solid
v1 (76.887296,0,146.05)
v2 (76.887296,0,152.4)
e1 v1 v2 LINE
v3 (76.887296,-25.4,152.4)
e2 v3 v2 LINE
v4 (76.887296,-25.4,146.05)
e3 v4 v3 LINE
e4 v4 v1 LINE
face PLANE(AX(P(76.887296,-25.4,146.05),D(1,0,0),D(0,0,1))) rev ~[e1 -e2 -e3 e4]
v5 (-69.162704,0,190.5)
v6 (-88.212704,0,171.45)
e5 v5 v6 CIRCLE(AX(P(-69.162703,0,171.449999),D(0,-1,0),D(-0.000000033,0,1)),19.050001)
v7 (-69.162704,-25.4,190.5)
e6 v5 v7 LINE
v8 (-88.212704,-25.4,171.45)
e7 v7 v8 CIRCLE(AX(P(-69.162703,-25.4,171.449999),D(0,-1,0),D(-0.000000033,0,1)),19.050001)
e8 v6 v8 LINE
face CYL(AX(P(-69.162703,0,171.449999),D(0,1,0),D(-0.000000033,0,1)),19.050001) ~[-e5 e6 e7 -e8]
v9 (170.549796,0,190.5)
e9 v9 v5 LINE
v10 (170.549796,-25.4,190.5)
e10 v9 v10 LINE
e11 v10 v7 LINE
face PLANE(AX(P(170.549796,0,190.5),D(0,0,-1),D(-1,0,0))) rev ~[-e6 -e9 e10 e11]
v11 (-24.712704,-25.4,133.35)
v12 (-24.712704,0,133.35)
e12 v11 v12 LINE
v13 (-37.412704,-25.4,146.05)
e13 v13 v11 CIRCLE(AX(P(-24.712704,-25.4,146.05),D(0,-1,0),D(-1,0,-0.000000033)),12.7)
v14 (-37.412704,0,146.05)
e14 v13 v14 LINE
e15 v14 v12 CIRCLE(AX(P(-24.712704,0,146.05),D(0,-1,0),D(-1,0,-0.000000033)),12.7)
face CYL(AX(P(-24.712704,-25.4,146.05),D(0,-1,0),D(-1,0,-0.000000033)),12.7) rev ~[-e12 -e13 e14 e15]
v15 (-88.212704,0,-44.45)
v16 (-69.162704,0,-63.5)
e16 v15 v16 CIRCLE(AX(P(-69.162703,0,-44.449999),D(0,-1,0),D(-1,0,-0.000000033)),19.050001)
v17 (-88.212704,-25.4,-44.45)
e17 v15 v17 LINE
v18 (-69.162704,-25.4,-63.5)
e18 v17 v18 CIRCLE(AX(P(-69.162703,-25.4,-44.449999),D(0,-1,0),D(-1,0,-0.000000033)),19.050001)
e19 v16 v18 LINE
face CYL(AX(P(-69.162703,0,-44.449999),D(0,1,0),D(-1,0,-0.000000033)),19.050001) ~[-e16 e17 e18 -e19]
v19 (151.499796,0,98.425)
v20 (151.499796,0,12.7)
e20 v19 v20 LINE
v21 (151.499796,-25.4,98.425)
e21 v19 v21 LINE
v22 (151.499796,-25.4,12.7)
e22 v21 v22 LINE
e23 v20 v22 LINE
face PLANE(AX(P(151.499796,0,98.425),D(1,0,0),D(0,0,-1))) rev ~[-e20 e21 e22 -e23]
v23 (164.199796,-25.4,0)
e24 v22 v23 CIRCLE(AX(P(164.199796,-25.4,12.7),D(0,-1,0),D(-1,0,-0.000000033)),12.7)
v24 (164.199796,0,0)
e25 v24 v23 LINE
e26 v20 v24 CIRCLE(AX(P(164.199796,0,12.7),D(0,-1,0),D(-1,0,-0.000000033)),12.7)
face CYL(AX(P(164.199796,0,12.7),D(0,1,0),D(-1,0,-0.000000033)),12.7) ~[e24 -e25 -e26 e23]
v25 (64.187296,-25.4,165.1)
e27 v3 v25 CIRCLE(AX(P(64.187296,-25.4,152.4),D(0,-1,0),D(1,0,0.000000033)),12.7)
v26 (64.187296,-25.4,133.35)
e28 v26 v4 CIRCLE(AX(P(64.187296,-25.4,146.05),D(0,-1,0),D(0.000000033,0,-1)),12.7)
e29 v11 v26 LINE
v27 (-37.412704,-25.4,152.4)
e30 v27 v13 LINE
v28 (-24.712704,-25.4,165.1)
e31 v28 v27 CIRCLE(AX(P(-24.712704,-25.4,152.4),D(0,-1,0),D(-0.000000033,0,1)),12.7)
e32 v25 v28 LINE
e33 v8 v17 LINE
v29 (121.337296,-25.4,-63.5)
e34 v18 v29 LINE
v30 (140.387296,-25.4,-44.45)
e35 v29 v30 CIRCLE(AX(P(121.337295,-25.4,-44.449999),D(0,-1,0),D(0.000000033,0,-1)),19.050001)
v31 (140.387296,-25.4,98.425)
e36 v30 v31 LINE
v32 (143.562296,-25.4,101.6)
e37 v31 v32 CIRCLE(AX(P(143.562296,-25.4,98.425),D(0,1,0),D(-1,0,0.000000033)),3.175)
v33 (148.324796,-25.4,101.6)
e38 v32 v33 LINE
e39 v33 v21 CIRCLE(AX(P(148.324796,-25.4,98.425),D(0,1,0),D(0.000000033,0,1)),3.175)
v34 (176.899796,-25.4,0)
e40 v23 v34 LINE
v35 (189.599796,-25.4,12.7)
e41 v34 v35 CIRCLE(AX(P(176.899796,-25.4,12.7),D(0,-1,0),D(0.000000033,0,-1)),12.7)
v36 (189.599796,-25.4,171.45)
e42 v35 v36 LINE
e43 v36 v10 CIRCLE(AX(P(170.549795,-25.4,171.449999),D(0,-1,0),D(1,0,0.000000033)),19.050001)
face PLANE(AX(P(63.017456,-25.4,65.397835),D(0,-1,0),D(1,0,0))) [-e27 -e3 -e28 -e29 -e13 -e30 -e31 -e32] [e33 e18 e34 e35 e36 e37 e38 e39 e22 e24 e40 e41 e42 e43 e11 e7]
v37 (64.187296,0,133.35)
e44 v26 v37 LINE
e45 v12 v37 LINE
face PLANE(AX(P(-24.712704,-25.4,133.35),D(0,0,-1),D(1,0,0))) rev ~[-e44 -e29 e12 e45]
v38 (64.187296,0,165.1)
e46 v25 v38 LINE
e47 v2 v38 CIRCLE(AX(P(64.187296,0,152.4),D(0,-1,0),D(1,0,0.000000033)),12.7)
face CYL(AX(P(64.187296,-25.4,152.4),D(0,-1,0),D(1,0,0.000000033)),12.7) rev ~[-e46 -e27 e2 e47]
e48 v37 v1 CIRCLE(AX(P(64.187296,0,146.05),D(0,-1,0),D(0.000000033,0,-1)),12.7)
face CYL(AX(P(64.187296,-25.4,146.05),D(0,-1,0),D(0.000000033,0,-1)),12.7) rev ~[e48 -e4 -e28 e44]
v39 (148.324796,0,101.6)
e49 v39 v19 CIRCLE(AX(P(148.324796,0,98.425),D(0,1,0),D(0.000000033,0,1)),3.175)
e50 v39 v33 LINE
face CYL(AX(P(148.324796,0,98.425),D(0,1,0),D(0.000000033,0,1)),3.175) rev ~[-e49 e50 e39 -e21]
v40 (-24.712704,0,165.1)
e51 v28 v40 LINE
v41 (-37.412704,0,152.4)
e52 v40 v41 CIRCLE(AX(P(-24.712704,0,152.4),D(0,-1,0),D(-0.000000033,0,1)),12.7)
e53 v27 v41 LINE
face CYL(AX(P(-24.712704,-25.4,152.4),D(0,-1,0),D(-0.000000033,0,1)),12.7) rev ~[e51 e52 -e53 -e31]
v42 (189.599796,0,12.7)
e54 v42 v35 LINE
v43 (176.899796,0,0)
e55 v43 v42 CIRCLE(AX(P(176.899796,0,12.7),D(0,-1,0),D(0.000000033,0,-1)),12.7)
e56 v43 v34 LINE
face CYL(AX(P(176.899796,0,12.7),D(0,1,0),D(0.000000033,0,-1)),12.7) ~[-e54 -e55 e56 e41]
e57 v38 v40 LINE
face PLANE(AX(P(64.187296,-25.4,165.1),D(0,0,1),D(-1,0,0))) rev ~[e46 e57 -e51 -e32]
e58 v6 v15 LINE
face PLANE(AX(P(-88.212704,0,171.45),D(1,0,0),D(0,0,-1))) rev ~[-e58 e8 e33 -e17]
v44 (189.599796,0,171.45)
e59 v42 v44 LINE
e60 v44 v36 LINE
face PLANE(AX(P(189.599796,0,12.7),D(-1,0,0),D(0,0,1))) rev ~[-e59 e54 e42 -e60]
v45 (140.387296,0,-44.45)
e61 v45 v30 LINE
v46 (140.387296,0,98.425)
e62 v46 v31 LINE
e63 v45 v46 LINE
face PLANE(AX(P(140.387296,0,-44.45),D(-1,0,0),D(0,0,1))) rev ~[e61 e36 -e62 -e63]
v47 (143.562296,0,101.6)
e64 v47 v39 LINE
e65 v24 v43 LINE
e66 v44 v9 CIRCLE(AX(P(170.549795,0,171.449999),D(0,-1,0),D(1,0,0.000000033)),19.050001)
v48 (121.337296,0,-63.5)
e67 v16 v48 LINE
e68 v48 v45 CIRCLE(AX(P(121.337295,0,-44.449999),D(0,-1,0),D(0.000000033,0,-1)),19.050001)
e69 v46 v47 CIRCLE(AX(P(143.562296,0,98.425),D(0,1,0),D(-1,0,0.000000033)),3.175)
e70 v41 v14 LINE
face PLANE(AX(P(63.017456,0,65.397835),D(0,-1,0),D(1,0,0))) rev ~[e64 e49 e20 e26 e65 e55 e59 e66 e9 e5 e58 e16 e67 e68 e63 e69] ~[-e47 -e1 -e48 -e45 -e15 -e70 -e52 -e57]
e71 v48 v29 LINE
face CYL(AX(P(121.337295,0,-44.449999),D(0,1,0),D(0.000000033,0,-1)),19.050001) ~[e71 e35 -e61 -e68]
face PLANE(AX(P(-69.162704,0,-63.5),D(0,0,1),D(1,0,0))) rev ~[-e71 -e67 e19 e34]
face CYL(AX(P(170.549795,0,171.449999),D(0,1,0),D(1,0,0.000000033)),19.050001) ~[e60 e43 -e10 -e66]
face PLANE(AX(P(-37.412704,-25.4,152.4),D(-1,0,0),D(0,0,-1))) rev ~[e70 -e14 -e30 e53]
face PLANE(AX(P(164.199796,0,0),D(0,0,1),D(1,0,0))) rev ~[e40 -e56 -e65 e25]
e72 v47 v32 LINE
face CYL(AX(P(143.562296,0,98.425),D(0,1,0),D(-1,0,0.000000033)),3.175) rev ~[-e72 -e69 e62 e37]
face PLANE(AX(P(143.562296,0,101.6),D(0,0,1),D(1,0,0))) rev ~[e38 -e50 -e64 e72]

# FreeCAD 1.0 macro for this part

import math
import FreeCAD as App
import Part
import Sketcher
Q = App.Units.Quantity

doc = App.newDocument("Part")
body = doc.addObject("PartDesign::Body", "Body")

# Sketch on XZ plane
sketch1 = body.newObject("Sketcher::SketchObject", "Sketch")
sketch1.AttachmentSupport = (doc.getObject("XZ_Plane"), [""])
sketch1.MapMode = "FlatFace"
sketch1.addGeometry([
    Part.LineSegment(App.Vector(170.5, 190.5, 0), App.Vector(-69.2, 190.5, 0)),  # 0
    Part.ArcOfCircle(Part.Circle(App.Vector(-69.2, 171.4, 0), App.Vector(0, 0, 1), 19.1), math.radians(90), math.radians(180)),  # 1
    Part.LineSegment(App.Vector(-88.2, 171.4, 0), App.Vector(-88.2, -44.5, 0)),  # 2
    Part.ArcOfCircle(Part.Circle(App.Vector(-69.2, -44.4, 0), App.Vector(0, 0, 1), 19.1), math.radians(-180), math.radians(-90)),  # 3
    Part.LineSegment(App.Vector(-69.2, -63.5, 0), App.Vector(121.3, -63.5, 0)),  # 4
    Part.ArcOfCircle(Part.Circle(App.Vector(121.3, -44.4, 0), App.Vector(0, 0, 1), 19.1), math.radians(-90), math.radians(0)),  # 5
    Part.LineSegment(App.Vector(140.4, -44.5, 0), App.Vector(140.4, 98.4, 0)),  # 6
    Part.ArcOfCircle(Part.Circle(App.Vector(143.6, 98.4, 0), App.Vector(0, 0, 1), 3.2), math.radians(90), math.radians(180)),  # 7
    Part.LineSegment(App.Vector(143.6, 101.6, 0), App.Vector(148.3, 101.6, 0)),  # 8
    Part.ArcOfCircle(Part.Circle(App.Vector(148.3, 98.4, 0), App.Vector(0, 0, 1), 3.2), math.radians(0), math.radians(90)),  # 9
    Part.LineSegment(App.Vector(151.5, 98.4, 0), App.Vector(151.5, 12.7, 0)),  # 10
    Part.ArcOfCircle(Part.Circle(App.Vector(164.2, 12.7, 0), App.Vector(0, 0, 1), 12.7), math.radians(-180), math.radians(-90)),  # 11
    Part.LineSegment(App.Vector(164.2, 0, 0), App.Vector(176.9, 0, 0)),  # 12
    Part.ArcOfCircle(Part.Circle(App.Vector(176.9, 12.7, 0), App.Vector(0, 0, 1), 12.7), math.radians(-90), math.radians(0)),  # 13
    Part.LineSegment(App.Vector(189.6, 12.7, 0), App.Vector(189.6, 171.4, 0)),  # 14
    Part.ArcOfCircle(Part.Circle(App.Vector(170.5, 171.4, 0), App.Vector(0, 0, 1), 19.1), math.radians(0), math.radians(90)),  # 15
], False)
sketch1.addConstraint([
    Sketcher.Constraint("Tangent", 0, 2, 1, 1),
    Sketcher.Constraint("Tangent", 1, 2, 2, 1),
    Sketcher.Constraint("Tangent", 2, 2, 3, 1),
    Sketcher.Constraint("Tangent", 3, 2, 4, 1),
    Sketcher.Constraint("Tangent", 4, 2, 5, 1),
    Sketcher.Constraint("Tangent", 5, 2, 6, 1),
    Sketcher.Constraint("Tangent", 6, 2, 7, 2),
    Sketcher.Constraint("Tangent", 7, 1, 8, 1),
    Sketcher.Constraint("Tangent", 8, 2, 9, 2),
    Sketcher.Constraint("Tangent", 9, 1, 10, 1),
    Sketcher.Constraint("Tangent", 10, 2, 11, 1),
    Sketcher.Constraint("Tangent", 11, 2, 12, 1),
    Sketcher.Constraint("Tangent", 12, 2, 13, 1),
    Sketcher.Constraint("Tangent", 13, 2, 14, 1),
    Sketcher.Constraint("Tangent", 14, 2, 15, 1),
    Sketcher.Constraint("Tangent", 15, 2, 0, 1),
    Sketcher.Constraint("Horizontal", 0),
    Sketcher.Constraint("Vertical", 2),
    Sketcher.Constraint("Horizontal", 4),
    Sketcher.Constraint("Vertical", 6),
    Sketcher.Constraint("Horizontal", 8),
    Sketcher.Constraint("Vertical", 10),
    Sketcher.Constraint("Horizontal", 12),
    Sketcher.Constraint("Vertical", 14),
    Sketcher.Constraint("Equal", 1, 3),
    Sketcher.Constraint("Equal", 3, 5),
    Sketcher.Constraint("Equal", 7, 9),
    Sketcher.Constraint("Equal", 11, 13),
    Sketcher.Constraint("Equal", 5, 15),
    Sketcher.Constraint("PointOnObject", 11, 2, -1),
    Sketcher.Constraint("Radius", 11, Q("0.5 in")),
    Sketcher.Constraint("Radius", 1, Q("0.75 in")),
    Sketcher.Constraint("DistanceX", 4, 1, 4, 2, Q("7.5 in")),
    Sketcher.Constraint("DistanceX", 12, 1, 12, 2, Q("0.5 in")),
    Sketcher.Constraint("DistanceY", 2, 2, 2, 1, Q("8.5 in")),
    Sketcher.Constraint("DistanceY", -1, 1, 7, 1, Q("4 in")),
    Sketcher.Constraint("Radius", 7, Q("0.125 in")),
    Sketcher.Constraint("DistanceY", 4, 2, 11, 3, Q("3 in")),
    Sketcher.Constraint("DistanceX", 0, 2, 0, 1, Q("9.4375 in")),
    Sketcher.Constraint("DistanceX", 1, 3, -1, 1, 69.162703),
])
pad1 = body.newObject("PartDesign::Pad", "Pad")
pad1.Profile = sketch1
pad1.Length = Q("1 in")

# Sketch on XZ plane
sketch2 = body.newObject("Sketcher::SketchObject", "Sketch001")
sketch2.AttachmentSupport = (doc.getObject("XZ_Plane"), [""])
sketch2.MapMode = "FlatFace"
sketch2.AttachmentOffset = App.Placement(App.Vector(0, 0, 1 * 25.4), App.Rotation())
sketch2.addGeometry([
    Part.LineSegment(App.Vector(64, 165, 0), App.Vector(-25, 165, 0)),  # 0
    Part.ArcOfCircle(Part.Circle(App.Vector(-25, 152, 0), App.Vector(0, 0, 1), 13), math.radians(90), math.radians(180)),  # 1
    Part.LineSegment(App.Vector(-37, 152, 0), App.Vector(-37, 146, 0)),  # 2
    Part.ArcOfCircle(Part.Circle(App.Vector(-25, 146, 0), App.Vector(0, 0, 1), 13), math.radians(-180), math.radians(-90)),  # 3
    Part.LineSegment(App.Vector(-25, 133, 0), App.Vector(64, 133, 0)),  # 4
    Part.ArcOfCircle(Part.Circle(App.Vector(64, 146, 0), App.Vector(0, 0, 1), 13), math.radians(-90), math.radians(0)),  # 5
    Part.LineSegment(App.Vector(77, 146, 0), App.Vector(77, 152, 0)),  # 6
    Part.ArcOfCircle(Part.Circle(App.Vector(64, 152, 0), App.Vector(0, 0, 1), 13), math.radians(0), math.radians(90)),  # 7
], False)
sketch2.addConstraint([
    Sketcher.Constraint("Tangent", 0, 2, 1, 1),
    Sketcher.Constraint("Tangent", 1, 2, 2, 1),
    Sketcher.Constraint("Tangent", 2, 2, 3, 1),
    Sketcher.Constraint("Tangent", 3, 2, 4, 1),
    Sketcher.Constraint("Tangent", 4, 2, 5, 1),
    Sketcher.Constraint("Tangent", 5, 2, 6, 1),
    Sketcher.Constraint("Tangent", 6, 2, 7, 1),
    Sketcher.Constraint("Tangent", 7, 2, 0, 1),
    Sketcher.Constraint("Horizontal", 0),
    Sketcher.Constraint("Vertical", 2),
    Sketcher.Constraint("Horizontal", 4),
    Sketcher.Constraint("Vertical", 6),
    Sketcher.Constraint("Equal", 1, 3),
    Sketcher.Constraint("Equal", 3, 5),
    Sketcher.Constraint("Equal", 5, 7),
    Sketcher.Constraint("Radius", 1, Q("0.5 in")),
    Sketcher.Constraint("DistanceX", 0, 2, 0, 1, Q("3.5 in")),
    Sketcher.Constraint("DistanceY", -1, 1, 1, 3, Q("6 in")),
    Sketcher.Constraint("DistanceY", 2, 2, 2, 1, Q("0.25 in")),
    Sketcher.Constraint("DistanceX", 1, 3, -1, 1, 24.712704),
])
pocket1 = body.newObject("PartDesign::Pocket", "Pocket")
pocket1.Profile = sketch2
pocket1.Type = "ThroughAll"

doc.recompute()
